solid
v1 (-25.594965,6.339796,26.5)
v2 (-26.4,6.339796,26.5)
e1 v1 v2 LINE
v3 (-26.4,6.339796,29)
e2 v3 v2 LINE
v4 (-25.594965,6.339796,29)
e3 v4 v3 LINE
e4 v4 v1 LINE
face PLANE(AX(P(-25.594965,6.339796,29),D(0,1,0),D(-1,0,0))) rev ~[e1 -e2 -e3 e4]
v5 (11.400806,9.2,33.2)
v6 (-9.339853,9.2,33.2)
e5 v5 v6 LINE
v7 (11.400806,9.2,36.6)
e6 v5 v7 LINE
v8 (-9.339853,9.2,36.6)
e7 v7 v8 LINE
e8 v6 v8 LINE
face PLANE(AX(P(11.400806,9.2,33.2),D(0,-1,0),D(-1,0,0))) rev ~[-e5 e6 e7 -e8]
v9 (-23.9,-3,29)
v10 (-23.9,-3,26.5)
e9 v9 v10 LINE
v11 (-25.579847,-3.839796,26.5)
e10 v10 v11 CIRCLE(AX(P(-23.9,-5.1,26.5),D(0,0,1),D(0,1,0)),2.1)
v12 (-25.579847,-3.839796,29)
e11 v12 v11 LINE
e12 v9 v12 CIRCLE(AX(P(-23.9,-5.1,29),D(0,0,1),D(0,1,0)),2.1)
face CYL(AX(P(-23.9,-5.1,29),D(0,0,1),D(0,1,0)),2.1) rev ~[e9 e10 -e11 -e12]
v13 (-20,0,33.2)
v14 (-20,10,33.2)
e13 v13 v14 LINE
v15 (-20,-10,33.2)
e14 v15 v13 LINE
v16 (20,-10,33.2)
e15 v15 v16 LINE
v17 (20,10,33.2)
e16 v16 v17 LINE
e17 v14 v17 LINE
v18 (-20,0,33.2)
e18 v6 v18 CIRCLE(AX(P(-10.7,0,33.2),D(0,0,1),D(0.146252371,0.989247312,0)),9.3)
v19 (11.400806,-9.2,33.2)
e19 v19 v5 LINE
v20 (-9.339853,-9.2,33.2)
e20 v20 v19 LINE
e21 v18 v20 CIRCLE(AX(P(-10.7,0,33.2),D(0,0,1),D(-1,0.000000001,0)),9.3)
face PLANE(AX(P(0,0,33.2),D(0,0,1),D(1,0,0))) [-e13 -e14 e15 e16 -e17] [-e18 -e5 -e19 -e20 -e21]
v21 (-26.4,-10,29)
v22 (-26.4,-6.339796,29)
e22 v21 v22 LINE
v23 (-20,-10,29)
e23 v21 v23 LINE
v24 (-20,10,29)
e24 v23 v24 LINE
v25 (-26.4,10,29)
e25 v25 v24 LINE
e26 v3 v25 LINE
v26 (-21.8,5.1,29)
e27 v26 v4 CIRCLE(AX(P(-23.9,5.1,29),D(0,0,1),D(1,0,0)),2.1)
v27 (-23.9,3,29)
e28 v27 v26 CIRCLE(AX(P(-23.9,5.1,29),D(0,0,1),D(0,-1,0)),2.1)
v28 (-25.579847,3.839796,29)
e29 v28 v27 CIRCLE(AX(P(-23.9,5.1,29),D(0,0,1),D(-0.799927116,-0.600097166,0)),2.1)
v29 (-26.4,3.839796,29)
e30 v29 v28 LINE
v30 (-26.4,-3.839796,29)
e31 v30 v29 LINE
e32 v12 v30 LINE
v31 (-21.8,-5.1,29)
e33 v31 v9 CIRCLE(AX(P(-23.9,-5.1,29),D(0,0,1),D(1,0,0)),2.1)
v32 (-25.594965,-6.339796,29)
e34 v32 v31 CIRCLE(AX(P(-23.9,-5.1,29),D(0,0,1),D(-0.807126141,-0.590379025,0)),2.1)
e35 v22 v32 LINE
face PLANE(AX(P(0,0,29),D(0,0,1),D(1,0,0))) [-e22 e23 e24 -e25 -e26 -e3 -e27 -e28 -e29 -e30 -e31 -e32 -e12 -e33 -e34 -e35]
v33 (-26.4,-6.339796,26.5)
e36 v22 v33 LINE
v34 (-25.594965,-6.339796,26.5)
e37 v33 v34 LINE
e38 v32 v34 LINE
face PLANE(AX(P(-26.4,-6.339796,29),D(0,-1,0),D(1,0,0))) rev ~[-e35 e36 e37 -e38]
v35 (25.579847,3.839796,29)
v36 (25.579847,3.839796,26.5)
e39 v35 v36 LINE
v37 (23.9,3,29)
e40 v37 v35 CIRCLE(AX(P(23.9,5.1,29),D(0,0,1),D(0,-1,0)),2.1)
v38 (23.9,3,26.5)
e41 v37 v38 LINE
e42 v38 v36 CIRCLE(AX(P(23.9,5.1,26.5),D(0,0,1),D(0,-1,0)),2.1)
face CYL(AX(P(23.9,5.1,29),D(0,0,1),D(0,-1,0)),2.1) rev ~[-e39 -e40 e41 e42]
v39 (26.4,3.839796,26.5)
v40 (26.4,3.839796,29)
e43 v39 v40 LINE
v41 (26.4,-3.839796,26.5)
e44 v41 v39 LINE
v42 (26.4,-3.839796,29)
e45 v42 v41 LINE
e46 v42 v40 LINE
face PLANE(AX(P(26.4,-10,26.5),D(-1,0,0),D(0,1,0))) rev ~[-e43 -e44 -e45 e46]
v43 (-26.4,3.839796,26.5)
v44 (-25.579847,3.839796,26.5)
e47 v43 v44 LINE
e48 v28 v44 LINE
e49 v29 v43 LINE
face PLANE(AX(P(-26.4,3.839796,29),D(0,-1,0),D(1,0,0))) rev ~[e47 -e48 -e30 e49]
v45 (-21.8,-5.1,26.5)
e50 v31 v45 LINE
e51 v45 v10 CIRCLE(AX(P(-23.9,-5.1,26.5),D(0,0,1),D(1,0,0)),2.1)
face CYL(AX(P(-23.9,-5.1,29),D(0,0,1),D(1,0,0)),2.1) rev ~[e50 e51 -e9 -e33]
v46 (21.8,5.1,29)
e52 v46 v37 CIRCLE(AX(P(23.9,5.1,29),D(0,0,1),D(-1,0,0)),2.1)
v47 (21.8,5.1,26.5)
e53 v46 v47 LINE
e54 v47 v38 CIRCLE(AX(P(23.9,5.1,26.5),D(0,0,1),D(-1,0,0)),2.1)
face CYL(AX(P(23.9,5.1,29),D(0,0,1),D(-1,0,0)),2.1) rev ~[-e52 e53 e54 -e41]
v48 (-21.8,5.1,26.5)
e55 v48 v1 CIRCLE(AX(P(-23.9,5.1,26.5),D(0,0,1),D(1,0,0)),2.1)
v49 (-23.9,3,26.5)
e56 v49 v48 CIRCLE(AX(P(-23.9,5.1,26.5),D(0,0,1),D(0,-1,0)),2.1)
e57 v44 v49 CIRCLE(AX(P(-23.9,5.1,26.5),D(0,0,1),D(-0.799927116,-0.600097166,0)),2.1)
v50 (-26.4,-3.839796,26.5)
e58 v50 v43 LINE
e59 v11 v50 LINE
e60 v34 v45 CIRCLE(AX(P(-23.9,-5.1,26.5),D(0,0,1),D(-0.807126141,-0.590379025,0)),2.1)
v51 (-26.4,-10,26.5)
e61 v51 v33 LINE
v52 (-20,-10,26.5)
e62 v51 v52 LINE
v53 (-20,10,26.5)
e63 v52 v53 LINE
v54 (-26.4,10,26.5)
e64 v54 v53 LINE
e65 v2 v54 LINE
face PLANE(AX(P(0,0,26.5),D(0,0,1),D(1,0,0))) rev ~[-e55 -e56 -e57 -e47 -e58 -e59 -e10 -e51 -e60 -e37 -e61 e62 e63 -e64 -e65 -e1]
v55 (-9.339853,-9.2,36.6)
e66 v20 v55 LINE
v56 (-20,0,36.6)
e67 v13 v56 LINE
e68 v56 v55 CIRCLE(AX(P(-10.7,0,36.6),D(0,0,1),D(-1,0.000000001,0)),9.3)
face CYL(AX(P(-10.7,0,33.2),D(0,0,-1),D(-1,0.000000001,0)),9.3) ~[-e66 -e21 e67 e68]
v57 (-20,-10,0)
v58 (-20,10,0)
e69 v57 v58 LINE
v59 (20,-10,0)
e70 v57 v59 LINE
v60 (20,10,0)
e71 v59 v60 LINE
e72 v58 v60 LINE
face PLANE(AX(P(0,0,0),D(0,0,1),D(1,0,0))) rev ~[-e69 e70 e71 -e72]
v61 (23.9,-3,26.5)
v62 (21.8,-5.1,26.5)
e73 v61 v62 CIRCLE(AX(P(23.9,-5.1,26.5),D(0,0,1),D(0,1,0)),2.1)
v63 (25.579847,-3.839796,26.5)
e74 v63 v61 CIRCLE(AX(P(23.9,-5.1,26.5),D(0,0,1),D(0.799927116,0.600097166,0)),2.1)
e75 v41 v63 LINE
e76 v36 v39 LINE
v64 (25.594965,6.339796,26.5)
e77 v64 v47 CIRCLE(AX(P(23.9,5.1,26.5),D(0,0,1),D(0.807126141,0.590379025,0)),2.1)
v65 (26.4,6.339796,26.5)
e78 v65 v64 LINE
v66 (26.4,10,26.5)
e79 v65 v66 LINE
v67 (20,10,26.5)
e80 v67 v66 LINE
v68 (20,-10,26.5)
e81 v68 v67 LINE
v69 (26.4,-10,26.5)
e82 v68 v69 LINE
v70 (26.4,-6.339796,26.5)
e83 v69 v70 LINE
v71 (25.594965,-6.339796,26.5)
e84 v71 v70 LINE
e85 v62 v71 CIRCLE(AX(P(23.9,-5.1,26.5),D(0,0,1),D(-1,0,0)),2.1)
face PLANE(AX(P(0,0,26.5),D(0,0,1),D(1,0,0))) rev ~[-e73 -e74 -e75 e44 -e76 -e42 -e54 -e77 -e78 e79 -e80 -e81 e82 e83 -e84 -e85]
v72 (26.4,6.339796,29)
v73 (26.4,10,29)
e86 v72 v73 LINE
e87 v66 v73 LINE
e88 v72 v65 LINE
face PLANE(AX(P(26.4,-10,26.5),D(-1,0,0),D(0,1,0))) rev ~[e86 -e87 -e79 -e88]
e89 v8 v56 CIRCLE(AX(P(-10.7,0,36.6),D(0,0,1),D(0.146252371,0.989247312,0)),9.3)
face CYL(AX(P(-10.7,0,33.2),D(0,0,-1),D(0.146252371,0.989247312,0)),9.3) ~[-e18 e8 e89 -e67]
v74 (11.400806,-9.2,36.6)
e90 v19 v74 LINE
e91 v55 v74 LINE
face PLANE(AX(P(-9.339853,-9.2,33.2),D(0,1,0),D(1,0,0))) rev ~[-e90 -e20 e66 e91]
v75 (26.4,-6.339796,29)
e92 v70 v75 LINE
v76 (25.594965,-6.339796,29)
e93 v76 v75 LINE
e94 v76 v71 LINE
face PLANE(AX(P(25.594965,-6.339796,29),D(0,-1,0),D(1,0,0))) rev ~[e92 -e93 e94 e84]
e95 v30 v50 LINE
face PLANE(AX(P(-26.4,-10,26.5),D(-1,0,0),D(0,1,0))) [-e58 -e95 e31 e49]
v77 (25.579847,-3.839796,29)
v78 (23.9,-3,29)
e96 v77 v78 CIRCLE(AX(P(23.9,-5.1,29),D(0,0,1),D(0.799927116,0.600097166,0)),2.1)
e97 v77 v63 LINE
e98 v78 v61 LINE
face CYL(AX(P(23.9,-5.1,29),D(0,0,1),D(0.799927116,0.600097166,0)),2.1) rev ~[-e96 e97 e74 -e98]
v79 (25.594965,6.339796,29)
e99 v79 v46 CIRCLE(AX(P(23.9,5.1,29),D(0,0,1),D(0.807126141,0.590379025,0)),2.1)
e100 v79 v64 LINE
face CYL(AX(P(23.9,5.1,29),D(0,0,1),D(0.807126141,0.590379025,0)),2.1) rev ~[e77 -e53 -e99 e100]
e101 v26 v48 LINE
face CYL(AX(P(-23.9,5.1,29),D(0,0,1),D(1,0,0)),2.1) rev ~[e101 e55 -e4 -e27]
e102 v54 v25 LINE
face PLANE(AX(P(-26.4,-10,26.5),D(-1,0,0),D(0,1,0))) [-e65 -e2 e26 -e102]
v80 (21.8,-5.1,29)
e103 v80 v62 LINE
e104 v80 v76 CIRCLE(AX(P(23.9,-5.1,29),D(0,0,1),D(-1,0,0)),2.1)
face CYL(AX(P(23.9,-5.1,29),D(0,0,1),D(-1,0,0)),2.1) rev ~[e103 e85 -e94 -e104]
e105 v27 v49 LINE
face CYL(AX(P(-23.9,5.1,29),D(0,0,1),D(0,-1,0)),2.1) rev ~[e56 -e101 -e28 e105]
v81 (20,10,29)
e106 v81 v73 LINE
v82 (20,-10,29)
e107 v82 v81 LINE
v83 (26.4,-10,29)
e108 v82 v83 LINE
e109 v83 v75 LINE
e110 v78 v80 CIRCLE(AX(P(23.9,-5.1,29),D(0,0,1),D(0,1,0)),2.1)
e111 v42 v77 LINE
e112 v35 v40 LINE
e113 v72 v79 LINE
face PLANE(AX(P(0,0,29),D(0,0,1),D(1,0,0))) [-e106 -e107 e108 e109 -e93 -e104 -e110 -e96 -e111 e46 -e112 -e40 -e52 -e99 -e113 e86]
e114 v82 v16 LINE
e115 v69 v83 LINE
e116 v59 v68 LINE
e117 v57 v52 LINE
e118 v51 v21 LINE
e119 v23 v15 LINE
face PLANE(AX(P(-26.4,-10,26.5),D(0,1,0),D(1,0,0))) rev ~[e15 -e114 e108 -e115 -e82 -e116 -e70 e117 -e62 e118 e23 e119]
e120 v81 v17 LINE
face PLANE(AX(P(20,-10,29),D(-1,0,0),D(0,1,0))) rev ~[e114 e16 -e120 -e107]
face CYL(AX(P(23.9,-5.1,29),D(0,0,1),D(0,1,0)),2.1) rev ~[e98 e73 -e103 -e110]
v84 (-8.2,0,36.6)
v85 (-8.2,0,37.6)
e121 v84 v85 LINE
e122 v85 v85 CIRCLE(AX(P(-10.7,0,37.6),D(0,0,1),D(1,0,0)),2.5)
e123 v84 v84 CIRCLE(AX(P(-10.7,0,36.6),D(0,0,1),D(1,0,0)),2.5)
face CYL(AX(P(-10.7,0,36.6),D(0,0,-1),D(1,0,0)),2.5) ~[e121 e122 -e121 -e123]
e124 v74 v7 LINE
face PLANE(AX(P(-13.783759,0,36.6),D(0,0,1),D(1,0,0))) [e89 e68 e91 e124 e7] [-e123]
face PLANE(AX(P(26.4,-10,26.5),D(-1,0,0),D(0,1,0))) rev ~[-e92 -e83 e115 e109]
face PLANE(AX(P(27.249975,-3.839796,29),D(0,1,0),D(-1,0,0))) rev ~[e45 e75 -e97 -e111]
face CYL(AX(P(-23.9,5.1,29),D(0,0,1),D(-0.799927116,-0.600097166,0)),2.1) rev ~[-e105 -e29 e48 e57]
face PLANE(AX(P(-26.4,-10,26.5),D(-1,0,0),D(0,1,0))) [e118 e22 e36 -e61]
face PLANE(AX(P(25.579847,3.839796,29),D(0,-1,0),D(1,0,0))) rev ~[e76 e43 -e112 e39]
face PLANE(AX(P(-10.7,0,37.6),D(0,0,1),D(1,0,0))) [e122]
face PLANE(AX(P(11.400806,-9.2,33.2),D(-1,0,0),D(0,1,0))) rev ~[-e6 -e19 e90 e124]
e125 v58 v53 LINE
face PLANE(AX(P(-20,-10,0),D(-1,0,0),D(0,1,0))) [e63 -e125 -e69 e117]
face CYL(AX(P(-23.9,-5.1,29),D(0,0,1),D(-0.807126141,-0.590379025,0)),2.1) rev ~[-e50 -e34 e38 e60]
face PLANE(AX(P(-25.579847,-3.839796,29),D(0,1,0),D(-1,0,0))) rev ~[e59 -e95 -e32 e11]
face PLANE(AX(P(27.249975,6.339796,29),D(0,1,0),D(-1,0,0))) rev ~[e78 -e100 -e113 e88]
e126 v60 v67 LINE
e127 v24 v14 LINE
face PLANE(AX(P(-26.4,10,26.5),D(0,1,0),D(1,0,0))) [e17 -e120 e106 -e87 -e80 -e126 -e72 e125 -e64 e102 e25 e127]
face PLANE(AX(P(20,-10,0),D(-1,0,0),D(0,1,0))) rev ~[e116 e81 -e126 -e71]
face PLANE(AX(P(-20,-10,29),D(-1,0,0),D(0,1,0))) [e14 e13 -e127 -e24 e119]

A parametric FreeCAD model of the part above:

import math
import FreeCAD as App
import Part
import Sketcher
from FreeCAD import Vector
Q = App.Units.Quantity


def add_polygon(sketch, points):
    """Adds a closed chain of lines whose ends are joined by coincident constraints."""
    first, n = sketch.GeometryCount, len(points)
    for a, b in zip(points, points[1:] + points[:1]):
        sketch.addGeometry(Part.LineSegment(App.Vector(*a, 0), App.Vector(*b, 0)), False)
    for i in range(n):
        sketch.addConstraint(Sketcher.Constraint("Coincident", first + i, 2, first + (i + 1) % n, 1))

doc = App.newDocument("Part")
body = doc.addObject("PartDesign::Body", "Body")

sketch1 = body.newObject("Sketcher::SketchObject", "Sketch")
sketch1.AttachmentSupport = (doc.getObject("XY_Plane"), [""])
sketch1.MapMode = "FlatFace"
add_polygon(sketch1, [(-20, 10), (-20, -10), (20, -10), (20, 10)])
sketch1.addConstraint([
    Sketcher.Constraint("Vertical", 0),
    Sketcher.Constraint("Horizontal", 1),
    Sketcher.Constraint("Vertical", 2),
    Sketcher.Constraint("Horizontal", 3),
    Sketcher.Constraint("Symmetric", 0, 2, 2, 2, -1, 1),
    Sketcher.Constraint("DistanceX", 1, 1, 1, 2, Q("40 mm")),
    Sketcher.Constraint("DistanceY", 0, 2, 0, 1, Q("20 mm")),
])
pad1 = body.newObject("PartDesign::Pad", "Pad")
pad1.Profile = sketch1
pad1.Length = 26.5

sketch2 = body.newObject("Sketcher::SketchObject", "Sketch001")
sketch2.AttachmentSupport = (doc.getObject("XY_Plane"), [""])
sketch2.MapMode = "FlatFace"
sketch2.AttachmentOffset = App.Placement(Vector(0, 0, 26.5), App.Rotation())
add_polygon(sketch2, [(-26, 10), (-26, -10), (26, -10), (26, 10)])
sketch2.addConstraint([
    Sketcher.Constraint("Vertical", 0),
    Sketcher.Constraint("Horizontal", 1),
    Sketcher.Constraint("Vertical", 2),
    Sketcher.Constraint("Horizontal", 3),
    Sketcher.Constraint("Symmetric", 0, 2, 2, 2, -1, 1),
    Sketcher.Constraint("DistanceY", 0, 2, 0, 1, Q("20 mm")),
    Sketcher.Constraint("DistanceX", 1, 1, 1, 2, Q("52.8 mm")),
])
pad2 = body.newObject("PartDesign::Pad", "Pad001")
pad2.Profile = sketch2
pad2.Length = 2.5

sketch3 = body.newObject("Sketcher::SketchObject", "Sketch002")
sketch3.AttachmentSupport = (doc.getObject("XY_Plane"), [""])
sketch3.MapMode = "FlatFace"
sketch3.AttachmentOffset = App.Placement(Vector(0, 0, 29), App.Rotation())
add_polygon(sketch3, [(-20, 10), (-20, -10), (20, -10), (20, 10)])
sketch3.addConstraint([
    Sketcher.Constraint("Vertical", 0),
    Sketcher.Constraint("Horizontal", 1),
    Sketcher.Constraint("Vertical", 2),
    Sketcher.Constraint("Horizontal", 3),
    Sketcher.Constraint("Symmetric", 0, 2, 2, 2, -1, 1),
    Sketcher.Constraint("DistanceX", 1, 1, 1, 2, Q("40 mm")),
    Sketcher.Constraint("DistanceY", 0, 2, 0, 1, Q("20 mm")),
])
pad3 = body.newObject("PartDesign::Pad", "Pad002")
pad3.Profile = sketch3
pad3.Length = 4.2

sketch4 = body.newObject("Sketcher::SketchObject", "Sketch003")
sketch4.AttachmentSupport = (doc.getObject("XY_Plane"), [""])
sketch4.MapMode = "FlatFace"
sketch4.AttachmentOffset = App.Placement(Vector(0, 0, 33.2), App.Rotation())
sketch4.addGeometry([
    Part.ArcOfCircle(Part.Circle(Vector(-11, 0, 0), Vector(0, 0, 1), 9), math.radians(82), math.radians(180)),
    Part.ArcOfCircle(Part.Circle(Vector(-11, 0, 0), Vector(0, 0, 1), 9), math.radians(180), math.radians(278)),
    Part.LineSegment(Vector(-9, -9, 0), Vector(11, -9, 0)),
    Part.LineSegment(Vector(11, -9, 0), Vector(11, 9, 0)),
    Part.LineSegment(Vector(11, 9, 0), Vector(-9, 9, 0)),
], False)
sketch4.addConstraint([
    Sketcher.Constraint("Tangent", 0, 2, 1, 1),
    Sketcher.Constraint("Coincident", 1, 2, 2, 1),
    Sketcher.Constraint("Coincident", 2, 2, 3, 1),
    Sketcher.Constraint("Coincident", 3, 2, 4, 1),
    Sketcher.Constraint("Coincident", 4, 2, 0, 1),
    Sketcher.Constraint("Horizontal", 2),
    Sketcher.Constraint("Vertical", 3),
    Sketcher.Constraint("Horizontal", 4),
    Sketcher.Constraint("Equal", 0, 1),
    Sketcher.Constraint("Symmetric", 1, 2, 4, 2, -1),
    Sketcher.Constraint("PointOnObject", 0, 2, -1),
    Sketcher.Constraint("Radius", 0, Q("9.3 mm")),
    Sketcher.Constraint("DistanceY", 3, 1, 3, 2, Q("18.4 mm")),
    Sketcher.Constraint("DistanceX", 0, 2, -1, 1, Q("20 mm")),
    Sketcher.Constraint("DistanceX", 2, 1, 2, 2, Q("20.740659 mm")),
])
pad4 = body.newObject("PartDesign::Pad", "Pad003")
pad4.Profile = sketch4
pad4.Length = 3.4

sketch5 = body.newObject("Sketcher::SketchObject", "Sketch004")
sketch5.AttachmentSupport = (doc.getObject("XY_Plane"), [""])
sketch5.MapMode = "FlatFace"
sketch5.AttachmentOffset = App.Placement(Vector(0, 0, 36.6), App.Rotation())
sketch5.addGeometry(Part.Circle(Vector(-10.7, 0, 0), Vector(0, 0, 1), 2.5), False)
sketch5.addConstraint([
    Sketcher.Constraint("PointOnObject", 0, 3, -1),
    Sketcher.Constraint("Diameter", 0, Q("5 mm")),
    Sketcher.Constraint("DistanceX", 0, 3, -1, 1, Q("10.7 mm")),
])
pad5 = body.newObject("PartDesign::Pad", "Pad004")
pad5.Profile = sketch5
pad5.Length = 1

sketch6 = body.newObject("Sketcher::SketchObject", "Sketch005")
sketch6.AttachmentSupport = (doc.getObject("XY_Plane"), [""])
sketch6.MapMode = "FlatFace"
sketch6.AttachmentOffset = App.Placement(Vector(0, 0, 29), App.Rotation())
sketch6.addGeometry([
    Part.ArcOfCircle(Part.Circle(Vector(-23.9, 5.1, 0), Vector(0, 0, 1), 2.1), math.radians(0), math.radians(144)),
    Part.LineSegment(Vector(-25.6, 6.3, 0), Vector(-26.4, 6.3, 0)),
    Part.LineSegment(Vector(-26.4, 6.3, 0), Vector(-26.4, 3.8, 0)),
    Part.LineSegment(Vector(-26.4, 3.8, 0), Vector(-25.6, 3.8, 0)),
    Part.ArcOfCircle(Part.Circle(Vector(-23.9, 5.1, 0), Vector(0, 0, 1), 2.1), math.radians(-143), math.radians(-90)),
    Part.ArcOfCircle(Part.Circle(Vector(-23.9, 5.1, 0), Vector(0, 0, 1), 2.1), math.radians(-90), math.radians(0)),
    Part.ArcOfCircle(Part.Circle(Vector(-23.9, -5.1, 0), Vector(0, 0, 1), 2.1), math.radians(90), math.radians(143)),
    Part.LineSegment(Vector(-25.6, -3.8, 0), Vector(-26.4, -3.8, 0)),
    Part.LineSegment(Vector(-26.4, -3.8, 0), Vector(-26.4, -6.3, 0)),
    Part.LineSegment(Vector(-26.4, -6.3, 0), Vector(-25.6, -6.3, 0)),
    Part.ArcOfCircle(Part.Circle(Vector(-23.9, -5.1, 0), Vector(0, 0, 1), 2.1), math.radians(-144), math.radians(0)),
    Part.ArcOfCircle(Part.Circle(Vector(-23.9, -5.1, 0), Vector(0, 0, 1), 2.1), math.radians(0), math.radians(90)),
    Part.ArcOfCircle(Part.Circle(Vector(23.9, 5.1, 0), Vector(0, 0, 1), 2.1), math.radians(36), math.radians(180)),
    Part.ArcOfCircle(Part.Circle(Vector(23.9, 5.1, 0), Vector(0, 0, 1), 2.1), math.radians(180), math.radians(270)),
    Part.ArcOfCircle(Part.Circle(Vector(23.9, 5.1, 0), Vector(0, 0, 1), 2.1), math.radians(-90), math.radians(-37)),
    Part.LineSegment(Vector(25.6, 3.8, 0), Vector(27.2, 3.8, 0)),
    Part.LineSegment(Vector(27.2, 3.8, 0), Vector(27.2, 6.3, 0)),
    Part.LineSegment(Vector(27.2, 6.3, 0), Vector(25.6, 6.3, 0)),
    Part.LineSegment(Vector(25.6, -6.3, 0), Vector(27.2, -6.3, 0)),
    Part.LineSegment(Vector(27.2, -6.3, 0), Vector(27.2, -3.8, 0)),
    Part.LineSegment(Vector(27.2, -3.8, 0), Vector(25.6, -3.8, 0)),
    Part.ArcOfCircle(Part.Circle(Vector(23.9, -5.1, 0), Vector(0, 0, 1), 2.1), math.radians(37), math.radians(90)),
    Part.ArcOfCircle(Part.Circle(Vector(23.9, -5.1, 0), Vector(0, 0, 1), 2.1), math.radians(90), math.radians(180)),
    Part.ArcOfCircle(Part.Circle(Vector(23.9, -5.1, 0), Vector(0, 0, 1), 2.1), math.radians(180), math.radians(324)),
], False)
sketch6.addConstraint([
    Sketcher.Constraint("Coincident", 0, 2, 1, 1),
    Sketcher.Constraint("Coincident", 1, 2, 2, 1),
    Sketcher.Constraint("Coincident", 2, 2, 3, 1),
    Sketcher.Constraint("Coincident", 3, 2, 4, 1),
    Sketcher.Constraint("Tangent", 4, 2, 5, 1),
    Sketcher.Constraint("Tangent", 5, 2, 0, 1),
    Sketcher.Constraint("Coincident", 6, 2, 7, 1),
    Sketcher.Constraint("Coincident", 7, 2, 8, 1),
    Sketcher.Constraint("Coincident", 8, 2, 9, 1),
    Sketcher.Constraint("Coincident", 9, 2, 10, 1),
    Sketcher.Constraint("Tangent", 10, 2, 11, 1),
    Sketcher.Constraint("Tangent", 11, 2, 6, 1),
    Sketcher.Constraint("Tangent", 12, 2, 13, 1),
    Sketcher.Constraint("Tangent", 13, 2, 14, 1),
    Sketcher.Constraint("Coincident", 14, 2, 15, 1),
    Sketcher.Constraint("Coincident", 15, 2, 16, 1),
    Sketcher.Constraint("Coincident", 16, 2, 17, 1),
    Sketcher.Constraint("Coincident", 17, 2, 12, 1),
    Sketcher.Constraint("Coincident", 18, 2, 19, 1),
    Sketcher.Constraint("Coincident", 19, 2, 20, 1),
    Sketcher.Constraint("Coincident", 20, 2, 21, 1),
    Sketcher.Constraint("Tangent", 21, 2, 22, 1),
    Sketcher.Constraint("Tangent", 22, 2, 23, 1),
    Sketcher.Constraint("Coincident", 23, 2, 18, 1),
    Sketcher.Constraint("Horizontal", 1),
    Sketcher.Constraint("Vertical", 2),
    Sketcher.Constraint("Horizontal", 3),
    Sketcher.Constraint("Horizontal", 7),
    Sketcher.Constraint("Vertical", 8),
    Sketcher.Constraint("Horizontal", 9),
    Sketcher.Constraint("Horizontal", 15),
    Sketcher.Constraint("Vertical", 16),
    Sketcher.Constraint("Horizontal", 17),
    Sketcher.Constraint("Horizontal", 18),
    Sketcher.Constraint("Vertical", 19),
    Sketcher.Constraint("Horizontal", 20),
    Sketcher.Constraint("Coincident", 4, 3, 0, 3),
    Sketcher.Constraint("Coincident", 10, 3, 6, 3),
    Sketcher.Constraint("Coincident", 14, 3, 12, 3),
    Sketcher.Constraint("Coincident", 23, 3, 21, 3),
    Sketcher.Constraint("Equal", 5, 6),
    Sketcher.Constraint("Equal", 11, 12),
    Sketcher.Constraint("Equal", 14, 21),
    Sketcher.Constraint("Symmetric", 6, 3, 12, 3, -1, 1),
    Sketcher.Constraint("Symmetric", 0, 3, 21, 3, -1, 1),
    Sketcher.Constraint("Symmetric", 0, 3, 12, 3, -2),
    Sketcher.Constraint("Symmetric", 2, 2, 7, 2, -1),
    Sketcher.Constraint("Symmetric", 16, 2, 18, 2, -1),
    Sketcher.Constraint("Horizontal", 14, 3, 5, 2),
    Sketcher.Constraint("Horizontal", 23, 3, 10, 2),
    Sketcher.Constraint("Horizontal", 5, 2, 12, 2),
    Sketcher.Constraint("Horizontal", 3, 2, 14, 2),
    Sketcher.Constraint("Horizontal", 1, 2, 16, 2),
    Sketcher.Constraint("Horizontal", 9, 2, 18, 2),
    Sketcher.Constraint("Horizontal", 7, 2, 19, 2),
    Sketcher.Constraint("Horizontal", 10, 2, 22, 2),
    Sketcher.Constraint("Vertical", 11, 3, 4, 2),
    Sketcher.Constraint("Vertical", 4, 2, 11, 2),
    Sketcher.Constraint("Vertical", 23, 3, 13, 2),
    Sketcher.Constraint("Vertical", 13, 2, 21, 2),
    Sketcher.Constraint("Radius", 0, Q("2.1 mm")),
    Sketcher.Constraint("DistanceY", 2, 2, 2, 1, Q("2.5 mm")),
    Sketcher.Constraint("DistanceY", -1, 1, 4, 2, Q("3 mm")),
    Sketcher.Constraint("DistanceX", 0, 3, -1, 1, Q("23.9 mm")),
    Sketcher.Constraint("DistanceX", 1, 2, -1, 1, Q("26.4 mm")),
    Sketcher.Constraint("DistanceX", 15, 1, 15, 2, Q("1.670128 mm")),
    Sketcher.Constraint("DistanceX", 17, 2, 17, 1, Q("1.65501 mm")),
])
pocket1 = body.newObject("PartDesign::Pocket", "Pocket")
pocket1.Profile = sketch6
pocket1.Type = "ThroughAll"

doc.recompute()
